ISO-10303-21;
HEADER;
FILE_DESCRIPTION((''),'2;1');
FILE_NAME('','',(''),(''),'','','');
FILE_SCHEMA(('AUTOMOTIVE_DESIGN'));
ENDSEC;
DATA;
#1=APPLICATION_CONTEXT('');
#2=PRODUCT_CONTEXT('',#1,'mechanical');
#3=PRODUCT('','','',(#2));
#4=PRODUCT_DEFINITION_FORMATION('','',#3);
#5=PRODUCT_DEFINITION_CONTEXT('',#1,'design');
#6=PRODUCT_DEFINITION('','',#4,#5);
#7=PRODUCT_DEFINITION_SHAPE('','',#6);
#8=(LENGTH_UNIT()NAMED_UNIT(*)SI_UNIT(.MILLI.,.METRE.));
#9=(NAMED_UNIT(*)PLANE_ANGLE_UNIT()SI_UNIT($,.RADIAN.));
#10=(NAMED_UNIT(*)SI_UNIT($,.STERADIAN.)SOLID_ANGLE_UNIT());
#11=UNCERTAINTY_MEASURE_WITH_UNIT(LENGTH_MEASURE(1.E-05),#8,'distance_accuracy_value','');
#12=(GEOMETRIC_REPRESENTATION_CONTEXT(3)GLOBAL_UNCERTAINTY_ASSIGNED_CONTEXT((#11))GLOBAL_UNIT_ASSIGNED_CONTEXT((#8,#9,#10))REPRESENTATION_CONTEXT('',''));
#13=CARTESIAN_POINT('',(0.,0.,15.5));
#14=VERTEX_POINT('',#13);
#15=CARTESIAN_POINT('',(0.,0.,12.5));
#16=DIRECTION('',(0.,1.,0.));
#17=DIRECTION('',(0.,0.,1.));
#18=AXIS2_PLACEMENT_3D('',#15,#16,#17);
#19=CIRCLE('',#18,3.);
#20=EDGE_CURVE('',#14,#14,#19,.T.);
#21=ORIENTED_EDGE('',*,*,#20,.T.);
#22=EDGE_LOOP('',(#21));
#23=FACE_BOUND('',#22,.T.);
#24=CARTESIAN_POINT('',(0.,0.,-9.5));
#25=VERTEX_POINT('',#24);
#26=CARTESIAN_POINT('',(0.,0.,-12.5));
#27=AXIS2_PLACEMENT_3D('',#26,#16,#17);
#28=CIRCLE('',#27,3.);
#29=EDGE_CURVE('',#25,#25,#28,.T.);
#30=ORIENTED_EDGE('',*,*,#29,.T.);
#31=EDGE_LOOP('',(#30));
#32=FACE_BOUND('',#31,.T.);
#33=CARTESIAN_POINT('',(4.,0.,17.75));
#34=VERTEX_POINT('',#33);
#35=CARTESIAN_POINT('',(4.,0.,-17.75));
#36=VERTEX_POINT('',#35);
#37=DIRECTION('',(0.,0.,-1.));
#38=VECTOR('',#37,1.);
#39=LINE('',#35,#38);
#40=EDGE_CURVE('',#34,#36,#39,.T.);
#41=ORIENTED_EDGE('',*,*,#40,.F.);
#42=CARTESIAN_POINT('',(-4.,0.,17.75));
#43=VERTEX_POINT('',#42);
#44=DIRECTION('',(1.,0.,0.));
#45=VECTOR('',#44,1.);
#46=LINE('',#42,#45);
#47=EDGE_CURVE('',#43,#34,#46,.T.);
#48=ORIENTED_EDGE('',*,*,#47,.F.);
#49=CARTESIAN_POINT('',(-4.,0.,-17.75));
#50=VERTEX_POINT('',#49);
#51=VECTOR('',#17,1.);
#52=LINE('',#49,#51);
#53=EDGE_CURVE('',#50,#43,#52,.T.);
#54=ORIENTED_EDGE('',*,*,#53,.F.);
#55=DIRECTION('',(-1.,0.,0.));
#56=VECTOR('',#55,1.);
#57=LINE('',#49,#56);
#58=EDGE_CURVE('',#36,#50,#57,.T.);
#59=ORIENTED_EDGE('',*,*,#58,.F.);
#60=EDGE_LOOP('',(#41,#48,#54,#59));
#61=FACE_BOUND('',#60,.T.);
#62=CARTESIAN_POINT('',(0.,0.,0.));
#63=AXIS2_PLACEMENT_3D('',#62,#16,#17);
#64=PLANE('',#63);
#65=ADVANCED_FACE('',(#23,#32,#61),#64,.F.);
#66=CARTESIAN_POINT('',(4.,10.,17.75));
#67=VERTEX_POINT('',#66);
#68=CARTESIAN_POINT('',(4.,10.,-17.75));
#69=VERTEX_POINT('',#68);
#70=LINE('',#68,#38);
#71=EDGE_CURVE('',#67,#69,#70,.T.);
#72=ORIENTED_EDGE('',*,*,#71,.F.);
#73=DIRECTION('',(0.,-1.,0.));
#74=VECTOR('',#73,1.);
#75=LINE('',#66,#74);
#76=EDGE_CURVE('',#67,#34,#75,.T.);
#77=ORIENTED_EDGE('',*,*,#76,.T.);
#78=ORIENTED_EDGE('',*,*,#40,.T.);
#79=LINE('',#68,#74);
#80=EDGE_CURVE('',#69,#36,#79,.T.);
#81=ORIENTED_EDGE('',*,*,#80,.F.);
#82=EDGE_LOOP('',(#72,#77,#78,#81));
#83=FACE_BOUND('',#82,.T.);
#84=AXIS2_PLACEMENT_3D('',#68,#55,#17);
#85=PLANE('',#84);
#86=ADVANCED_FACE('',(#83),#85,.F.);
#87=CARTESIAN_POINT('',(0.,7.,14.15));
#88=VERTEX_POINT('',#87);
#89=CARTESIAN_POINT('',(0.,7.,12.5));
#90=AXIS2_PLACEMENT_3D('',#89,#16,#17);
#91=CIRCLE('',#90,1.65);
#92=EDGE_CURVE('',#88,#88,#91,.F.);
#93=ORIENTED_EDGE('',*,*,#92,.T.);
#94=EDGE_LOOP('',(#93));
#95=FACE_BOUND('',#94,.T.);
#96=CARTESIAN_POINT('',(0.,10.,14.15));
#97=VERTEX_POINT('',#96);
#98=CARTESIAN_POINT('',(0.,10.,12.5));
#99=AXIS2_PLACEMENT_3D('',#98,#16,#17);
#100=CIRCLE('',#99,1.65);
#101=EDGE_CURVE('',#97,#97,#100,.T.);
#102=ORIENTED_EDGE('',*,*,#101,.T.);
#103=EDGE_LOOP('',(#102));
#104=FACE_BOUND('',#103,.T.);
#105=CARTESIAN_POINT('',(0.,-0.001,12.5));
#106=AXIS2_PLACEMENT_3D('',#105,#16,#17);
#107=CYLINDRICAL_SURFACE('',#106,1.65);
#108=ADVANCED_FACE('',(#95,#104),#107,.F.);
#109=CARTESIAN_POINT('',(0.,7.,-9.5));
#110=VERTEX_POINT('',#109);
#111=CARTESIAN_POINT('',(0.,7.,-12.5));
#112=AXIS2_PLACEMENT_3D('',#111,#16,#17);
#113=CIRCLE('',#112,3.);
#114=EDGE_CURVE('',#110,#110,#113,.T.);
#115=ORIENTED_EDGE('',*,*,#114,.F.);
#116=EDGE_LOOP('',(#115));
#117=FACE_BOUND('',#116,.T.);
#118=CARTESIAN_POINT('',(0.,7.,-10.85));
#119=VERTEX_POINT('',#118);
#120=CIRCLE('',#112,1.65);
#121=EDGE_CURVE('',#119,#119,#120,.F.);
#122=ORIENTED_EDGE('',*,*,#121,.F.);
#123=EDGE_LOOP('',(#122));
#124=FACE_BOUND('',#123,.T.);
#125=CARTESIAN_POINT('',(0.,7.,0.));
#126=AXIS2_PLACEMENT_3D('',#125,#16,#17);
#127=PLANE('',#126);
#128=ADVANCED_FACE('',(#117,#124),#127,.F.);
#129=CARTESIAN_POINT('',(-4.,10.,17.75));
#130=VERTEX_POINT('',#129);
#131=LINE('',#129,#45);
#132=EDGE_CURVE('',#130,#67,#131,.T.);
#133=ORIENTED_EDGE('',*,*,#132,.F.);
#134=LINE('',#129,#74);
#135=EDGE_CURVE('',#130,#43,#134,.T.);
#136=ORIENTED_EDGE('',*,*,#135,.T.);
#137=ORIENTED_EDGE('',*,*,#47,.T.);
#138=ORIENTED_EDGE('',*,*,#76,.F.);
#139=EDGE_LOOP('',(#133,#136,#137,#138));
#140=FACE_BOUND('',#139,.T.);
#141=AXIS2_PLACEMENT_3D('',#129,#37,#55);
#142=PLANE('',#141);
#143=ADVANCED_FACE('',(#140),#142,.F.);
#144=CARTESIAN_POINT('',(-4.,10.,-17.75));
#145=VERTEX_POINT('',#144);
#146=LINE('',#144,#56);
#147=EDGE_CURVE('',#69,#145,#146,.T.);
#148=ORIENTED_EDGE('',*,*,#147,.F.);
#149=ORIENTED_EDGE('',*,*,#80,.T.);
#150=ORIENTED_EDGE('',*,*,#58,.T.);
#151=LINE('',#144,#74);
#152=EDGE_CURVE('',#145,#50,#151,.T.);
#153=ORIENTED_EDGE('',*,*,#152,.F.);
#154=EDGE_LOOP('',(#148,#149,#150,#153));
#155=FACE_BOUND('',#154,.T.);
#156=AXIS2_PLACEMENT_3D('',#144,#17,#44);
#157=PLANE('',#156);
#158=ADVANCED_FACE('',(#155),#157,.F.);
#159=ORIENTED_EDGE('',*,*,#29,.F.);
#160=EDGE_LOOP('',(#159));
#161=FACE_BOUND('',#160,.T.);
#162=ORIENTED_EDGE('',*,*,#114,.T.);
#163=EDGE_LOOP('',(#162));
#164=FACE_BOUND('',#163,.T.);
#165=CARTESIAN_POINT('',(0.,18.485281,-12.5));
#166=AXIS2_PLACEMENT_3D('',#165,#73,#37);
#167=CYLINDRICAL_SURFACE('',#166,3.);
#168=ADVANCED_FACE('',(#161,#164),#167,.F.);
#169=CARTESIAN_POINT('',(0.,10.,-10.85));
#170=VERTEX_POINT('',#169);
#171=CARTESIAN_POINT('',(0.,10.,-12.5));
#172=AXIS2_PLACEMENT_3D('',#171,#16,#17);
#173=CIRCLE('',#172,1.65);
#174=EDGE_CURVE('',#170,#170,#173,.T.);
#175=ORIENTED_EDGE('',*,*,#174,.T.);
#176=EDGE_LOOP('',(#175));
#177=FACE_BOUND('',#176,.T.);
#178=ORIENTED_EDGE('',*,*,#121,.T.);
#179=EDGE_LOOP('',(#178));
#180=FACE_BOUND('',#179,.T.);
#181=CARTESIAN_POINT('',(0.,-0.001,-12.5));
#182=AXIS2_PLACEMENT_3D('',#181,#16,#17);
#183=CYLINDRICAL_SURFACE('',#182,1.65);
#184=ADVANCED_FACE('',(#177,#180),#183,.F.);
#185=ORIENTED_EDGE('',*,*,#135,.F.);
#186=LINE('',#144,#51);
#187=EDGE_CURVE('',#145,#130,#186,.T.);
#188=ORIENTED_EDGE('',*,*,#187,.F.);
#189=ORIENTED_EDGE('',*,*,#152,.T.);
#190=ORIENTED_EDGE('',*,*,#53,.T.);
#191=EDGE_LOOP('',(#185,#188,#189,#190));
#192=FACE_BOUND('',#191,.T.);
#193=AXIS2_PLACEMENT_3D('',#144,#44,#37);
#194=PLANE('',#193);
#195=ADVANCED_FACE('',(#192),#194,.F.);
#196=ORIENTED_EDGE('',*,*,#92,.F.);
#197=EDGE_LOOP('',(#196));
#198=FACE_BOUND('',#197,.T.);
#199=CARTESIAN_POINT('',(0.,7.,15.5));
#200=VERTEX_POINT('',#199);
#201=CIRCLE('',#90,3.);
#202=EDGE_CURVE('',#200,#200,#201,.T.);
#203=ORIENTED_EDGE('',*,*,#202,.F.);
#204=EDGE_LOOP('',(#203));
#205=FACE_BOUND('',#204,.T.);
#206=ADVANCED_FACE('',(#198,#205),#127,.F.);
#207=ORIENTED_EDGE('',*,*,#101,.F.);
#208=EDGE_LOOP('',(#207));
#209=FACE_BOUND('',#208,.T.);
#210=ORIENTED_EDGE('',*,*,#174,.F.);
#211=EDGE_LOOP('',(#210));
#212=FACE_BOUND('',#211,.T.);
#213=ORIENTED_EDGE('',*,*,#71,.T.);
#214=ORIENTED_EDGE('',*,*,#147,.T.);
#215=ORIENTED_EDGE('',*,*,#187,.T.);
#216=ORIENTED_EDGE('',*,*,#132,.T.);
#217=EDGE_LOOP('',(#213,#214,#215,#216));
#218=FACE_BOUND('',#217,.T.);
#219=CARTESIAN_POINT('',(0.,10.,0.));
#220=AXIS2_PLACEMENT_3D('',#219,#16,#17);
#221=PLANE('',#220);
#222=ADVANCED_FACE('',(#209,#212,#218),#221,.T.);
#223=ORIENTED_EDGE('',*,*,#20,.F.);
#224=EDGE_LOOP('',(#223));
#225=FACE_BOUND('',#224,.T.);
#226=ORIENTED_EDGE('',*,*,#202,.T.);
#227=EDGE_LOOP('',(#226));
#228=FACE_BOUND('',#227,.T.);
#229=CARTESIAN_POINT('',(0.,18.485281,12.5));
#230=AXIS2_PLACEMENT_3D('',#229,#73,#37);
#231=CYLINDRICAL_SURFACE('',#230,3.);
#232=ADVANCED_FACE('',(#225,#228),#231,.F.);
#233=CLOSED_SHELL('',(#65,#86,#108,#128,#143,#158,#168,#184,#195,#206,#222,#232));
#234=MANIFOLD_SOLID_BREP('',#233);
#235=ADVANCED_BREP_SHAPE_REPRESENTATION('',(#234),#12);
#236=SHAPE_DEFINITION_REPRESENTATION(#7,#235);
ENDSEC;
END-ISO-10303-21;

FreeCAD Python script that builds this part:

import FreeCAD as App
import Part
import Sketcher


def add_polygon(sketch, points):
    """Adds a closed chain of lines whose ends are joined by coincident constraints."""
    first, n = sketch.GeometryCount, len(points)
    for a, b in zip(points, points[1:] + points[:1]):
        sketch.addGeometry(Part.LineSegment(App.Vector(*a, 0), App.Vector(*b, 0)), False)
    for i in range(n):
        sketch.addConstraint(Sketcher.Constraint("Coincident", first + i, 2, first + (i + 1) % n, 1))

doc = App.newDocument("Part")
body = doc.addObject("PartDesign::Body", "Body")

sketch1 = doc.addObject("Sketcher::SketchObject", "Sketch")
body.addObject(sketch1)
sketch1.AttachmentSupport = (doc.XZ_Plane, [""])
sketch1.MapMode = "FlatFace"
add_polygon(sketch1, [(-4, -17.75), (-4, 17.75), (4, 17.75), (4, -17.75)])
sketch1.addConstraint(Sketcher.Constraint("Vertical", 0))
sketch1.addConstraint(Sketcher.Constraint("Horizontal", 1))
sketch1.addConstraint(Sketcher.Constraint("Vertical", 2))
sketch1.addConstraint(Sketcher.Constraint("Horizontal", 3))
sketch1.addConstraint(Sketcher.Constraint("Symmetric", 0, 2, 2, 2, -1, 1))
sketch1.addConstraint(Sketcher.Constraint("DistanceX", 1, 1, 1, 2, 8.0))
sketch1.addConstraint(Sketcher.Constraint("DistanceY", 0, 1, 0, 2, 35.5))
pad1 = doc.addObject("PartDesign::Pad", "Pad")
body.addObject(pad1)
pad1.Profile = sketch1
pad1.Length = 10
pad1.Reversed = True

sketch2 = doc.addObject("Sketcher::SketchObject", "Sketch001")
body.addObject(sketch2)
sketch2.AttachmentSupport = (doc.XZ_Plane, [""])
sketch2.MapMode = "FlatFace"
sketch2.AttachmentOffset = App.Placement(App.Vector(0, 0, -10), App.Rotation())
sketch2.addGeometry(Part.Circle(App.Vector(0, -12.5, 0), App.Vector(0, 0, 1), 1.65), False)
sketch2.addConstraint(Sketcher.Constraint("PointOnObject", 0, 3, -2))
sketch2.addConstraint(Sketcher.Constraint("Diameter", 0, 3.3))
sketch2.addConstraint(Sketcher.Constraint("DistanceY", 0, 3, -1, 1, 12.5))
pocket1 = doc.addObject("PartDesign::Pocket", "Pocket")
body.addObject(pocket1)
pocket1.Profile = sketch2
pocket1.Type = "UpToFirst"
pocket1.Reversed = True

sketch3 = doc.addObject("Sketcher::SketchObject", "Sketch002")
body.addObject(sketch3)
sketch3.AttachmentSupport = (doc.XZ_Plane, [""])
sketch3.MapMode = "FlatFace"
sketch3.AttachmentOffset = App.Placement(App.Vector(0, 0, -10), App.Rotation())
sketch3.addGeometry(Part.Circle(App.Vector(0, 12.5, 0), App.Vector(0, 0, 1), 1.65), False)
sketch3.addConstraint(Sketcher.Constraint("PointOnObject", 0, 3, -2))
sketch3.addConstraint(Sketcher.Constraint("Diameter", 0, 3.3))
sketch3.addConstraint(Sketcher.Constraint("DistanceY", -1, 1, 0, 3, 12.5))
pocket2 = doc.addObject("PartDesign::Pocket", "Pocket001")
body.addObject(pocket2)
pocket2.Profile = sketch3
pocket2.Type = "UpToFirst"
pocket2.Reversed = True

sketch4 = doc.addObject("Sketcher::SketchObject", "Sketch003")
body.addObject(sketch4)
sketch4.AttachmentSupport = (doc.XZ_Plane, [""])
sketch4.MapMode = "FlatFace"
sketch4.addGeometry(Part.Circle(App.Vector(0, -12.5, 0), App.Vector(0, 0, 1), 3), False)
sketch4.addGeometry(Part.Circle(App.Vector(0, 12.5, 0), App.Vector(0, 0, 1), 3), False)
sketch4.addConstraint(Sketcher.Constraint("Equal", 0, 1))
sketch4.addConstraint(Sketcher.Constraint("Symmetric", 0, 3, 1, 3, -1, 1))
sketch4.addConstraint(Sketcher.Constraint("PointOnObject", 0, 3, -2))
sketch4.addConstraint(Sketcher.Constraint("Diameter", 0, 6.0))
sketch4.addConstraint(Sketcher.Constraint("DistanceY", 0, 3, 1, 3, 25.0))
pocket3 = doc.addObject("PartDesign::Pocket", "Pocket002")
body.addObject(pocket3)
pocket3.Profile = sketch4
pocket3.Length = 7

doc.recompute()
